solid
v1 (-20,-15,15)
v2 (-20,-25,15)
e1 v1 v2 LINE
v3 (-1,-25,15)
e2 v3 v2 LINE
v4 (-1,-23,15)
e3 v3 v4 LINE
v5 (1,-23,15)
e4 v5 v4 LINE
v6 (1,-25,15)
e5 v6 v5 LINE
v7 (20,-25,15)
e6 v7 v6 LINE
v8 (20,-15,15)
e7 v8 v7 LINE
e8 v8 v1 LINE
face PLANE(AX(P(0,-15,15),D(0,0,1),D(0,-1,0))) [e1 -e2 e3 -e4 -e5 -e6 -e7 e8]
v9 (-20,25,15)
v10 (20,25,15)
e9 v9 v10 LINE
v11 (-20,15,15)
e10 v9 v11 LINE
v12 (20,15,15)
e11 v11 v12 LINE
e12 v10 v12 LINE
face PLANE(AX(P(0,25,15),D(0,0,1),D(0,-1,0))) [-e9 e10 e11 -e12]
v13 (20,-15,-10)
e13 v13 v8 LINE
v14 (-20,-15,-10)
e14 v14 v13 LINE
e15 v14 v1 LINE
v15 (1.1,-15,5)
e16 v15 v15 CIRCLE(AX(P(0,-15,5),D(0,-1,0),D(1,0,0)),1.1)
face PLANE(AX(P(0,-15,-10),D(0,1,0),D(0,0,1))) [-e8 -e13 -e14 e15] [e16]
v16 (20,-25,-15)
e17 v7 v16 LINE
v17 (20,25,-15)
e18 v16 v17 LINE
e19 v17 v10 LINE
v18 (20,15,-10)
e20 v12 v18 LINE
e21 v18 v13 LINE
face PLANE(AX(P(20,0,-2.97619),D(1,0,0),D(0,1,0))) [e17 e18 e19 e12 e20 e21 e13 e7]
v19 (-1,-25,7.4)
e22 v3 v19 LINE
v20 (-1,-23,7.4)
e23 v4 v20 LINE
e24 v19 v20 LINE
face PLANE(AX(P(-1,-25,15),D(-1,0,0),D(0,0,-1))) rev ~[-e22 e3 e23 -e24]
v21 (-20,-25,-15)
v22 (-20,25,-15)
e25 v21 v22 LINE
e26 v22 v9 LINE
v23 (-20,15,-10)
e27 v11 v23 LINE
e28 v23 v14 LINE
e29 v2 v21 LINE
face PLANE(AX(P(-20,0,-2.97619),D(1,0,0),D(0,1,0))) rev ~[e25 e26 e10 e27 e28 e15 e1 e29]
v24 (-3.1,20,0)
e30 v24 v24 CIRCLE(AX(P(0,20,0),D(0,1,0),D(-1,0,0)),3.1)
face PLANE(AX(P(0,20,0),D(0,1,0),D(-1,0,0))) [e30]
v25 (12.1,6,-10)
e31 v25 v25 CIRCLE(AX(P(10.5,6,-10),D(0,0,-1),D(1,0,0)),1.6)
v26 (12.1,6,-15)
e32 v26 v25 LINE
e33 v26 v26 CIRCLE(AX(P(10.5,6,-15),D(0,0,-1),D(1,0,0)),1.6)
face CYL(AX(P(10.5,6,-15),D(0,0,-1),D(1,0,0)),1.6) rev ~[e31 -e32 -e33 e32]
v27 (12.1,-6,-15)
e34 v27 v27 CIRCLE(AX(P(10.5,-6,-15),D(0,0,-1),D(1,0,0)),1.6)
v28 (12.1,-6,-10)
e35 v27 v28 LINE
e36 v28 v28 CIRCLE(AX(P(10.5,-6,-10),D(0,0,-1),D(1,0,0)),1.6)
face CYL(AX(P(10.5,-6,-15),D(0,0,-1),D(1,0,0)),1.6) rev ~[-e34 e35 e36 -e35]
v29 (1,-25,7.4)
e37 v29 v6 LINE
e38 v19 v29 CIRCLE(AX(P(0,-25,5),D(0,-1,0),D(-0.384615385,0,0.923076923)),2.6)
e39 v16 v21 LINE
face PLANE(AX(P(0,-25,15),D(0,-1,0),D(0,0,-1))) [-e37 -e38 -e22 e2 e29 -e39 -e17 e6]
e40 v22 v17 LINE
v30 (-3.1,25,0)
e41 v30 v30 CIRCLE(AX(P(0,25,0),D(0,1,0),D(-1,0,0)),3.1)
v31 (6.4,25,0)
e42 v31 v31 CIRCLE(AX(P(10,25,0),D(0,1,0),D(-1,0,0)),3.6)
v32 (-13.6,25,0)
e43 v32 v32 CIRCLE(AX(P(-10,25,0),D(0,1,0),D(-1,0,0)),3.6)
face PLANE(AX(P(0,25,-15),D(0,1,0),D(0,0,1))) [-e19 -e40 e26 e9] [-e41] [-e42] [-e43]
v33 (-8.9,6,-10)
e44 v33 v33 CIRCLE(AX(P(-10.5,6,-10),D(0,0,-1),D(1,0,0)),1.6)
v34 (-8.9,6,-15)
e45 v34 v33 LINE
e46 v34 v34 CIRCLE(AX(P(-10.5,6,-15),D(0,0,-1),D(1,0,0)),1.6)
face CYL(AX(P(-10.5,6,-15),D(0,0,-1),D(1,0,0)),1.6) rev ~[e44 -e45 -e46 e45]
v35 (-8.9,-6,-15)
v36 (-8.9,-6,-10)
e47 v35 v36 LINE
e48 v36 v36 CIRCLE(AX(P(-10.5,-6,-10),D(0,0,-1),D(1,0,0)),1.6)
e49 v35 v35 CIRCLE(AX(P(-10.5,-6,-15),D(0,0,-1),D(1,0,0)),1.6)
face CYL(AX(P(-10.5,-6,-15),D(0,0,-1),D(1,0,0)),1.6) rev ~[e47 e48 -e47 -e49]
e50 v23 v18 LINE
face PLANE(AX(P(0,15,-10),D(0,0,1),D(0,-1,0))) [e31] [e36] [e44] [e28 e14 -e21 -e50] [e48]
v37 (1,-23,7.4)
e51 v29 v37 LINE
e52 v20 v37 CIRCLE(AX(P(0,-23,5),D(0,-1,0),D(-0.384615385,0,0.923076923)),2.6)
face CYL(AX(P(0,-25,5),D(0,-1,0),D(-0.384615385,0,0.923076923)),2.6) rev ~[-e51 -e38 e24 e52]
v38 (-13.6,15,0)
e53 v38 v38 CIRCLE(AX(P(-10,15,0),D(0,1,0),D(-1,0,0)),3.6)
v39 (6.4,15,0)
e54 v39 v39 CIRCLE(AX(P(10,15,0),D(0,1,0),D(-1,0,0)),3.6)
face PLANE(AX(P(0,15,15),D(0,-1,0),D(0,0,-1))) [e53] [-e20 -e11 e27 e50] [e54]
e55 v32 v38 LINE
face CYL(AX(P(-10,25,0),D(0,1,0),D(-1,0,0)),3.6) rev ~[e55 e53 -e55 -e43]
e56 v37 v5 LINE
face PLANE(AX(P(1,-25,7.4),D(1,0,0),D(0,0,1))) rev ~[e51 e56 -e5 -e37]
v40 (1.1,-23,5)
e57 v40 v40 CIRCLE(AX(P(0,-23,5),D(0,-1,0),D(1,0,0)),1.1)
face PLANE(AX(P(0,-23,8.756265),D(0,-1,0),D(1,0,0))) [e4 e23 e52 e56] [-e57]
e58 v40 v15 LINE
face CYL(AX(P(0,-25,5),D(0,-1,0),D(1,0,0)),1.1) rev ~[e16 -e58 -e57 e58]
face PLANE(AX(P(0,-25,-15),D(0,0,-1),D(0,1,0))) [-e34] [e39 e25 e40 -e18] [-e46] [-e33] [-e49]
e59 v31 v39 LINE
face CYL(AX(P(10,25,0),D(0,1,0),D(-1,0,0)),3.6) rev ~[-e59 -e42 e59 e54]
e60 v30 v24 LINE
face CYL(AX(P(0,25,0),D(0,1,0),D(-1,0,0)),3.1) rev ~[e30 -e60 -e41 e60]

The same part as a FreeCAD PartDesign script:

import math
import FreeCAD as App
import Part
import Sketcher


def add_polygon(sketch, points):
    """Adds a closed chain of lines whose ends are joined by coincident constraints."""
    first, n = sketch.GeometryCount, len(points)
    for a, b in zip(points, points[1:] + points[:1]):
        sketch.addGeometry(Part.LineSegment(App.Vector(*a, 0), App.Vector(*b, 0)), False)
    for i in range(n):
        sketch.addConstraint(Sketcher.Constraint("Coincident", first + i, 2, first + (i + 1) % n, 1))

doc = App.newDocument("Part")
body = doc.addObject("PartDesign::Body", "Body")

sketch1 = body.newObject("Sketcher::SketchObject", "Sketch")
sketch1.AttachmentSupport = (doc.getObject("YZ_Plane"), [""])
sketch1.MapMode = "FlatFace"
add_polygon(sketch1, [(-25, -15), (25, -15), (25, 15), (15, 15), (15, -10), (-15, -10), (-15, 15), (-25, 15)])
sketch1.addConstraint([
    Sketcher.Constraint("Horizontal", 0),
    Sketcher.Constraint("Vertical", 1),
    Sketcher.Constraint("Horizontal", 2),
    Sketcher.Constraint("Vertical", 3),
    Sketcher.Constraint("Horizontal", 4),
    Sketcher.Constraint("Vertical", 5),
    Sketcher.Constraint("Horizontal", 6),
    Sketcher.Constraint("Vertical", 7),
    Sketcher.Constraint("Symmetric", 0, 2, 6, 2, -1, 1),
    Sketcher.Constraint("Symmetric", 2, 2, 5, 2, -2),
    Sketcher.Constraint("Equal", 4, 1),
    Sketcher.Constraint("DistanceX", 0, 1, 0, 2, 50.0),
    Sketcher.Constraint("DistanceX", 2, 2, 2, 1, 10.0),
    Sketcher.Constraint("DistanceY", 3, 2, 3, 1, 25.0),
])
pad1 = body.newObject("PartDesign::Pad", "Pad")
pad1.Profile = sketch1
pad1.Length = 40
pad1.Midplane = True

sketch2 = body.newObject("Sketcher::SketchObject", "Sketch001")
sketch2.AttachmentSupport = (doc.getObject("XY_Plane"), [""])
sketch2.MapMode = "FlatFace"
sketch2.AttachmentOffset = App.Placement(App.Vector(0, 0, -15), App.Rotation())
sketch2.addGeometry([
    Part.Circle(App.Vector(10.5, -6, 0), App.Vector(0, 0, 1), 1.6),
    Part.Circle(App.Vector(10.5, 6, 0), App.Vector(0, 0, 1), 1.6),
    Part.Circle(App.Vector(-10.5, -6, 0), App.Vector(0, 0, 1), 1.6),
    Part.Circle(App.Vector(-10.5, 6, 0), App.Vector(0, 0, 1), 1.6),
], False)
sketch2.addConstraint([
    Sketcher.Constraint("Equal", 0, 1),
    Sketcher.Constraint("Equal", 1, 2),
    Sketcher.Constraint("Equal", 2, 3),
    Sketcher.Constraint("Symmetric", 1, 3, 2, 3, -1, 1),
    Sketcher.Constraint("Symmetric", 0, 3, 3, 3, -1, 1),
    Sketcher.Constraint("Symmetric", 0, 3, 2, 3, -2),
    Sketcher.Constraint("Diameter", 0, 3.2),
    Sketcher.Constraint("DistanceY", 0, 3, -1, 1, 6.0),
    Sketcher.Constraint("DistanceX", 2, 3, 0, 3, 21.0),
])
pocket1 = body.newObject("PartDesign::Pocket", "Pocket")
pocket1.Profile = sketch2
pocket1.Length = 25
pocket1.Reversed = True

sketch3 = body.newObject("Sketcher::SketchObject", "Sketch002")
sketch3.AttachmentSupport = (doc.getObject("XZ_Plane"), [""])
sketch3.MapMode = "FlatFace"
sketch3.AttachmentOffset = App.Placement(App.Vector(0, 0, 25), App.Rotation())
sketch3.addGeometry(Part.Circle(App.Vector(0, 5, 0), App.Vector(0, 0, 1), 1.1), False)
sketch3.addConstraint([
    Sketcher.Constraint("PointOnObject", 0, 3, -2),
    Sketcher.Constraint("Diameter", 0, 2.2),
    Sketcher.Constraint("DistanceY", -1, 1, 0, 3, 5.0),
])
pocket2 = body.newObject("PartDesign::Pocket", "Pocket001")
pocket2.Profile = sketch3
pocket2.Length = 25

sketch4 = body.newObject("Sketcher::SketchObject", "Sketch003")
sketch4.AttachmentSupport = (doc.getObject("XZ_Plane"), [""])
sketch4.MapMode = "FlatFace"
sketch4.AttachmentOffset = App.Placement(App.Vector(0, 0, 25), App.Rotation())
sketch4.addGeometry([
    Part.LineSegment(App.Vector(-1, 15, 0), App.Vector(-1, 7.4, 0)),
    Part.ArcOfCircle(Part.Circle(App.Vector(0, 5, 0), App.Vector(0, 0, 1), 2.6), math.radians(113), math.radians(427)),
    Part.LineSegment(App.Vector(1, 7.4, 0), App.Vector(1, 15, 0)),
    Part.LineSegment(App.Vector(1, 15, 0), App.Vector(-1, 15, 0)),
    Part.Circle(App.Vector(0, 5, 0), App.Vector(0, 0, 1), 1.1),
], False)
sketch4.addConstraint([
    Sketcher.Constraint("Coincident", 0, 2, 1, 1),
    Sketcher.Constraint("Coincident", 1, 2, 2, 1),
    Sketcher.Constraint("Coincident", 2, 2, 3, 1),
    Sketcher.Constraint("Coincident", 3, 2, 0, 1),
    Sketcher.Constraint("Vertical", 0),
    Sketcher.Constraint("Vertical", 2),
    Sketcher.Constraint("Horizontal", 3),
    Sketcher.Constraint("Coincident", 4, 3, 1, 3),
    Sketcher.Constraint("Symmetric", 0, 2, 1, 2, -2),
    Sketcher.Constraint("Diameter", 4, 2.2),
    Sketcher.Constraint("Radius", 1, 2.6),
    Sketcher.Constraint("DistanceX", 3, 2, 3, 1, 2.0),
    Sketcher.Constraint("DistanceY", 0, 2, 0, 1, 7.6),
    Sketcher.Constraint("DistanceY", -1, 1, 1, 3, 5.0),
])
pocket3 = body.newObject("PartDesign::Pocket", "Pocket002")
pocket3.Profile = sketch4
pocket3.Length = 2

sketch5 = body.newObject("Sketcher::SketchObject", "Sketch004")
sketch5.AttachmentSupport = (doc.getObject("XZ_Plane"), [""])
sketch5.MapMode = "FlatFace"
sketch5.AttachmentOffset = App.Placement(App.Vector(0, 0, -25), App.Rotation())
sketch5.addGeometry([
    Part.Circle(App.Vector(10, 0, 0), App.Vector(0, 0, 1), 3.6),
    Part.Circle(App.Vector(-10, 0, 0), App.Vector(0, 0, 1), 3.6),
], False)
sketch5.addConstraint([
    Sketcher.Constraint("Equal", 0, 1),
    Sketcher.Constraint("Symmetric", 0, 3, 1, 3, -1, 1),
    Sketcher.Constraint("PointOnObject", 0, 3, -1),
    Sketcher.Constraint("Diameter", 0, 7.2),
    Sketcher.Constraint("DistanceX", -1, 1, 0, 3, 10.0),
])
pocket4 = body.newObject("PartDesign::Pocket", "Pocket003")
pocket4.Profile = sketch5
pocket4.Length = 25
pocket4.Reversed = True

sketch6 = body.newObject("Sketcher::SketchObject", "Sketch005")
sketch6.AttachmentSupport = (doc.getObject("XZ_Plane"), [""])
sketch6.MapMode = "FlatFace"
sketch6.AttachmentOffset = App.Placement(App.Vector(0, 0, -25), App.Rotation())
sketch6.addGeometry(Part.Circle(App.Vector(0, 0, 0), App.Vector(0, 0, 1), 3.1), False)
sketch6.addConstraint([
    Sketcher.Constraint("Coincident", 0, 3, -1, 1),
    Sketcher.Constraint("Diameter", 0, 6.2),
])
pocket5 = body.newObject("PartDesign::Pocket", "Pocket004")
pocket5.Profile = sketch6
pocket5.Length = 5
pocket5.Reversed = True

doc.recompute()
